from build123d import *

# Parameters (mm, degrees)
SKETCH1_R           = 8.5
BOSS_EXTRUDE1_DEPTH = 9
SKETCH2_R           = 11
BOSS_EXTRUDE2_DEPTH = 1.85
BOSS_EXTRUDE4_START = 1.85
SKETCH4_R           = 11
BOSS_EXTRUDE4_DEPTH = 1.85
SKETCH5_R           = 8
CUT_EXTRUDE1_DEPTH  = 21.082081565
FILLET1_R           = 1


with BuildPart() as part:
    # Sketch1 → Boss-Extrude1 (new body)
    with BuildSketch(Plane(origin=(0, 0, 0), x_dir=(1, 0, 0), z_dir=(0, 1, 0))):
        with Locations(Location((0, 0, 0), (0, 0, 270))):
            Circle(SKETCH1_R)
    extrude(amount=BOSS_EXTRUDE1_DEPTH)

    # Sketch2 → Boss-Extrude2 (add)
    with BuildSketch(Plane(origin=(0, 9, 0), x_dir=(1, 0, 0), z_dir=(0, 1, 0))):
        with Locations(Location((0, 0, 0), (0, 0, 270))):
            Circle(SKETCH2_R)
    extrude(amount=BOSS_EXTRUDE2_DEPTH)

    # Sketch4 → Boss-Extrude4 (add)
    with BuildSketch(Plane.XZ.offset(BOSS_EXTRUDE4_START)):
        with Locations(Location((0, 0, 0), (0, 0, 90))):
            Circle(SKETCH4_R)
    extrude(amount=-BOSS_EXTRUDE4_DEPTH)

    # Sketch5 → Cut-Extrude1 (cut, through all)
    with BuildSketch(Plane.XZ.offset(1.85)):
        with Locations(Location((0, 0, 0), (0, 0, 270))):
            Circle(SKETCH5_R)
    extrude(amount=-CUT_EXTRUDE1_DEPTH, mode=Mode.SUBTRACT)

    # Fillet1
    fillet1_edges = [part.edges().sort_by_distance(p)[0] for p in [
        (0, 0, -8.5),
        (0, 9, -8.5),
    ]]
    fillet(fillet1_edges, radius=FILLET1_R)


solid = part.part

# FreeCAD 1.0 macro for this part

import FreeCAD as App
import Part
import Sketcher

V = App.Vector
Q = App.Units.Quantity


def edges_at(feature, points):
    """Names of the edges that pass closest to the given points."""
    edges = feature.Shape.Edges
    near = lambda p: min(range(len(edges)), key=lambda i: edges[i].distToShape(Part.Vertex(*p))[0])
    return sorted({f"Edge{near(p) + 1}" for p in points})

doc = App.newDocument("Part")
params = doc.addObject("Spreadsheet::Sheet", "Params")
for row, (alias, value) in enumerate([
    ("sketch1_diameter", "17 mm"),
    ("pad1_length", "9 mm"),
    ("sketch2_diameter", "22 mm"),
    ("pad2_length", "1.85 mm"),
    ("sketch3_diameter", "22 mm"),
    ("pad3_length", "1.85 mm"),
    ("sketch4_diameter", "16 mm"),
    ("fillet_radius", "1 mm"),
], start=1):
    params.set(f"A{row}", alias)
    params.set(f"B{row}", "=" + value)
    params.setAlias(f"B{row}", alias)

body = doc.addObject("PartDesign::Body", "Body")

# Sketch on XZ plane
sketch1 = body.newObject("Sketcher::SketchObject", "Sketch")
sketch1.AttachmentSupport = (doc.getObject("XZ_Plane"), [""])
sketch1.MapMode = "FlatFace"
sketch1.addGeometry(Part.Circle(V(0, 0, 0), V(0, 0, 1), 8), False)
sketch1.addConstraint(Sketcher.Constraint("Coincident", 0, 3, -1, 1))
sketch1.addConstraint(Sketcher.Constraint("Diameter", 0, Q("17 mm")))
sketch1.setExpression("Constraints[1]", "Params.sketch1_diameter")
pad1 = body.newObject("PartDesign::Pad", "Pad")
pad1.Profile = sketch1
pad1.setExpression("Length", "Params.pad1_length")
pad1.Reversed = True

# Sketch on XZ plane
sketch2 = body.newObject("Sketcher::SketchObject", "Sketch001")
sketch2.AttachmentSupport = (doc.getObject("XZ_Plane"), [""])
sketch2.MapMode = "FlatFace"
sketch2.AttachmentOffset = App.Placement(V(0, 0, -9), App.Rotation())
sketch2.addGeometry(Part.Circle(V(0, 0, 0), V(0, 0, 1), 11), False)
sketch2.addConstraint(Sketcher.Constraint("Coincident", 0, 3, -1, 1))
sketch2.addConstraint(Sketcher.Constraint("Diameter", 0, Q("22 mm")))
sketch2.setExpression("Constraints[1]", "Params.sketch2_diameter")
pad2 = body.newObject("PartDesign::Pad", "Pad001")
pad2.Profile = sketch2
pad2.setExpression("Length", "Params.pad2_length")
pad2.Reversed = True

# Sketch on XZ plane
sketch3 = body.newObject("Sketcher::SketchObject", "Sketch002")
sketch3.AttachmentSupport = (doc.getObject("XZ_Plane"), [""])
sketch3.MapMode = "FlatFace"
sketch3.AttachmentOffset = App.Placement(V(0, 0, 1.85), App.Rotation())
sketch3.addGeometry(Part.Circle(V(0, 0, 0), V(0, 0, 1), 11), False)
sketch3.addConstraint(Sketcher.Constraint("Coincident", 0, 3, -1, 1))
sketch3.addConstraint(Sketcher.Constraint("Diameter", 0, Q("22 mm")))
sketch3.setExpression("Constraints[1]", "Params.sketch3_diameter")
pad3 = body.newObject("PartDesign::Pad", "Pad002")
pad3.Profile = sketch3
pad3.setExpression("Length", "Params.pad3_length")
pad3.Reversed = True

# Sketch on XZ plane
sketch4 = body.newObject("Sketcher::SketchObject", "Sketch003")
sketch4.AttachmentSupport = (doc.getObject("XZ_Plane"), [""])
sketch4.MapMode = "FlatFace"
sketch4.AttachmentOffset = App.Placement(V(0, 0, 1.85), App.Rotation())
sketch4.addGeometry(Part.Circle(V(0, 0, 0), V(0, 0, 1), 8), False)
sketch4.addConstraint(Sketcher.Constraint("Coincident", 0, 3, -1, 1))
sketch4.addConstraint(Sketcher.Constraint("Diameter", 0, Q("16 mm")))
sketch4.setExpression("Constraints[1]", "Params.sketch4_diameter")
pocket1 = body.newObject("PartDesign::Pocket", "Pocket")
pocket1.Profile = sketch4
pocket1.Type = "ThroughAll"
doc.recompute()

fillet = body.newObject("PartDesign::Fillet", "Fillet")
fillet.Base = (pocket1, edges_at(pocket1, [(0, 0, -8.5), (0, 9, -8.5)]))
fillet.setExpression("Radius", "Params.fillet_radius")

doc.recompute()
